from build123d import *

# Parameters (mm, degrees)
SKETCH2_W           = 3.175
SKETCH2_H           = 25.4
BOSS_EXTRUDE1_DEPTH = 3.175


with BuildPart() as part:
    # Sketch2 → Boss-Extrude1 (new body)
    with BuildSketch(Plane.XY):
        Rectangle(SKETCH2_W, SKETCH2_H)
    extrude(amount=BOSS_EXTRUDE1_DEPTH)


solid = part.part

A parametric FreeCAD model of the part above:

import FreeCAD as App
import Part
import Sketcher
Q = App.Units.Quantity


def add_polygon(sketch, points):
    """Adds a closed chain of lines whose ends are joined by coincident constraints."""
    first, n = sketch.GeometryCount, len(points)
    for a, b in zip(points, points[1:] + points[:1]):
        sketch.addGeometry(Part.LineSegment(App.Vector(*a, 0), App.Vector(*b, 0)), False)
    for i in range(n):
        sketch.addConstraint(Sketcher.Constraint("Coincident", first + i, 2, first + (i + 1) % n, 1))

doc = App.newDocument("Part")
body = doc.addObject("PartDesign::Body", "Body")

sketch1 = doc.addObject("Sketcher::SketchObject", "Sketch")
body.addObject(sketch1)
sketch1.AttachmentSupport = (doc.XY_Plane, [""])
sketch1.MapMode = "FlatFace"
add_polygon(sketch1, [(-1.5875, 12.7), (-1.5875, -12.7), (1.5875, -12.7), (1.5875, 12.7)])
sketch1.addConstraint(Sketcher.Constraint("Vertical", 0))
sketch1.addConstraint(Sketcher.Constraint("Horizontal", 1))
sketch1.addConstraint(Sketcher.Constraint("Vertical", 2))
sketch1.addConstraint(Sketcher.Constraint("Horizontal", 3))
sketch1.addConstraint(Sketcher.Constraint("Symmetric", 0, 2, 2, 2, -1, 1))
sketch1.addConstraint(Sketcher.Constraint("DistanceY", 0, 2, 0, 1, Q("1 in")))
sketch1.addConstraint(Sketcher.Constraint("DistanceX", 1, 1, 1, 2, Q("0.125 in")))
pad1 = doc.addObject("PartDesign::Pad", "Pad")
body.addObject(pad1)
pad1.Profile = sketch1
pad1.Length = Q("0.125 in")

doc.recompute()
